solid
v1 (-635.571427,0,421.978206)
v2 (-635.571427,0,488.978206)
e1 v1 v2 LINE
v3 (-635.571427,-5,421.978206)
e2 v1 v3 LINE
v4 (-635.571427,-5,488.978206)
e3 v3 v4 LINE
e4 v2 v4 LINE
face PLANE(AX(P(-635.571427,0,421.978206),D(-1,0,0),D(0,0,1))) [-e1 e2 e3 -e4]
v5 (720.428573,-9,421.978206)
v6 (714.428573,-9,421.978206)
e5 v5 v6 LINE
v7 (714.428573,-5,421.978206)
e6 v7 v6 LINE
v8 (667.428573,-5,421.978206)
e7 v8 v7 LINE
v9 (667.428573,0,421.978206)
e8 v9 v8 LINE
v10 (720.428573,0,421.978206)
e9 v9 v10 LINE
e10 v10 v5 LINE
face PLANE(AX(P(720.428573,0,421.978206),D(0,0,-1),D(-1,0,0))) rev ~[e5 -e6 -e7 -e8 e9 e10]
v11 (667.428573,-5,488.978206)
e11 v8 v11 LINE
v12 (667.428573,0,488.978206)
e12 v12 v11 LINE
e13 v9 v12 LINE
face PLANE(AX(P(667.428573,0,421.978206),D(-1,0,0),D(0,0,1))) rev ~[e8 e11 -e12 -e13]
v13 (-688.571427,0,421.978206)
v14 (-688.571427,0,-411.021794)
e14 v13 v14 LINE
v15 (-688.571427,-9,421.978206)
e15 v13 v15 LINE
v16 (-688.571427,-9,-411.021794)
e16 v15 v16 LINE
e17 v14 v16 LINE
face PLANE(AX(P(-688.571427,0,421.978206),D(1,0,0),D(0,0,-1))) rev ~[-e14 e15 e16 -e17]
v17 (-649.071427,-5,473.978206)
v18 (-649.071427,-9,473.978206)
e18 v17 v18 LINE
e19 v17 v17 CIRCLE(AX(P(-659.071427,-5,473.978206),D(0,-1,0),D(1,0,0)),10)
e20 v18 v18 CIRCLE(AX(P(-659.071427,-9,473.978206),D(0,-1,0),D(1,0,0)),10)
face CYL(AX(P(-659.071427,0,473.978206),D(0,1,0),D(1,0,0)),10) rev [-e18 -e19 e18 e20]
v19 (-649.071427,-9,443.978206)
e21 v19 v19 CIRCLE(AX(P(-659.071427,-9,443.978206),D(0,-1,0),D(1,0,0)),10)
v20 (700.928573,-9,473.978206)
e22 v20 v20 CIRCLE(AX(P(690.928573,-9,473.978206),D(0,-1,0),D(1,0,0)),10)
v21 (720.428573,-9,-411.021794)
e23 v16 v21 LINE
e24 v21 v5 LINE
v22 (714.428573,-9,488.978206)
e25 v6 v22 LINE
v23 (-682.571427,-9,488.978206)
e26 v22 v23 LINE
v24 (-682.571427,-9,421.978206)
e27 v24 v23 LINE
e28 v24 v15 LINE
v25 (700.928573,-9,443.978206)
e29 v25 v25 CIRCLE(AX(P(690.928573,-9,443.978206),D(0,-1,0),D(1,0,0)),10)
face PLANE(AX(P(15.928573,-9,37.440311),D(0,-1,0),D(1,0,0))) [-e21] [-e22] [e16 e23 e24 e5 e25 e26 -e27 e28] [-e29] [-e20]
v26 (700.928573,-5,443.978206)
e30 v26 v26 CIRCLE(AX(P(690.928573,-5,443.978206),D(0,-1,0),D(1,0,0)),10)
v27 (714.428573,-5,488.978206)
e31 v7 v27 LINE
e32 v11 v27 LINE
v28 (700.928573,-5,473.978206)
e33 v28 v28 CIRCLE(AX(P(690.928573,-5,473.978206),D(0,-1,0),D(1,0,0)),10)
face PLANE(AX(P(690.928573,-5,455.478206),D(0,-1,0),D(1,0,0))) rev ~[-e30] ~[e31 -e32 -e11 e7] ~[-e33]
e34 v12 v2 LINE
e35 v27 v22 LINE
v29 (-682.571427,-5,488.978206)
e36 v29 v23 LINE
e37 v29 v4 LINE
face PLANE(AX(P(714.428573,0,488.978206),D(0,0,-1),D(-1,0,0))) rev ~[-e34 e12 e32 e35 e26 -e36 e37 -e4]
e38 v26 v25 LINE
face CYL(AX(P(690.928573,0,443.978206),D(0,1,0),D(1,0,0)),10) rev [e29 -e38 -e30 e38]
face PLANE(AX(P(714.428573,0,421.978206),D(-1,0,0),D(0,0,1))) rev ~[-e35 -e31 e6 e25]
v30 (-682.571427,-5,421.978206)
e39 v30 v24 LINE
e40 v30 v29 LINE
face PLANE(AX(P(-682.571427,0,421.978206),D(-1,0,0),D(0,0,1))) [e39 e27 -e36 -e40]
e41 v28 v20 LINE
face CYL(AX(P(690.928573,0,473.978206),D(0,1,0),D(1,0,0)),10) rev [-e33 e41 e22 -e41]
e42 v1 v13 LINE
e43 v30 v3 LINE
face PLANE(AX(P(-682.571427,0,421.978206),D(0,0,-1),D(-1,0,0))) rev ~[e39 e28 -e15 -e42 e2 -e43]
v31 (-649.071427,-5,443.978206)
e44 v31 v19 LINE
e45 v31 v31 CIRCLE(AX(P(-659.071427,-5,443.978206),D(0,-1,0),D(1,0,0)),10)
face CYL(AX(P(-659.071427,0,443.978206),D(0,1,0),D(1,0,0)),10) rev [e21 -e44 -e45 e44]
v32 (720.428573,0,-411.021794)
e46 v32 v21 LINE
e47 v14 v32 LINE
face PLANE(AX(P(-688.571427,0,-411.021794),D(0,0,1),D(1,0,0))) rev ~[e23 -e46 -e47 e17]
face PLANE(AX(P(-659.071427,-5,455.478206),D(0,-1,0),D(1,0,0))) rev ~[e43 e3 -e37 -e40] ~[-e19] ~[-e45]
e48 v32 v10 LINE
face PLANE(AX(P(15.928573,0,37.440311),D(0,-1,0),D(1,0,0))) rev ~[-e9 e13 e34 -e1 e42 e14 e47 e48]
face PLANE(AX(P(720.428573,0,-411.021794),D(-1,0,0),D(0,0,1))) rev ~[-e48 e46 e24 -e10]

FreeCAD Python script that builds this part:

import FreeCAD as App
import Part
import Sketcher
Q = App.Units.Quantity

doc = App.newDocument("Part")
body = doc.addObject("PartDesign::Body", "Body")

# Sketch on XZ plane
sketch1 = body.newObject("Sketcher::SketchObject", "Sketch")
sketch1.AttachmentSupport = (doc.getObject("XZ_Plane"), [""])
sketch1.MapMode = "FlatFace"
sketch1.addGeometry(Part.LineSegment(App.Vector(-683, 489, 0), App.Vector(-683, 422, 0)), False)
sketch1.addGeometry(Part.LineSegment(App.Vector(-683, 422, 0), App.Vector(-689, 422, 0)), False)
sketch1.addGeometry(Part.LineSegment(App.Vector(-689, 422, 0), App.Vector(-689, -411, 0)), False)
sketch1.addGeometry(Part.LineSegment(App.Vector(-689, -411, 0), App.Vector(720, -411, 0)), False)
sketch1.addGeometry(Part.LineSegment(App.Vector(720, -411, 0), App.Vector(720, 422, 0)), False)
sketch1.addGeometry(Part.LineSegment(App.Vector(720, 422, 0), App.Vector(714, 422, 0)), False)
sketch1.addGeometry(Part.LineSegment(App.Vector(714, 422, 0), App.Vector(714, 489, 0)), False)
sketch1.addGeometry(Part.LineSegment(App.Vector(714, 489, 0), App.Vector(-683, 489, 0)), False)
sketch1.addGeometry(Part.Circle(App.Vector(-659, 444, 0), App.Vector(0, 0, 1), 10), False)
sketch1.addGeometry(Part.Circle(App.Vector(691, 444, 0), App.Vector(0, 0, 1), 10), False)
sketch1.addGeometry(Part.Circle(App.Vector(-659, 474, 0), App.Vector(0, 0, 1), 10), False)
sketch1.addGeometry(Part.Circle(App.Vector(691, 474, 0), App.Vector(0, 0, 1), 10), False)
sketch1.addConstraint(Sketcher.Constraint("Coincident", 0, 2, 1, 1))
sketch1.addConstraint(Sketcher.Constraint("Coincident", 1, 2, 2, 1))
sketch1.addConstraint(Sketcher.Constraint("Coincident", 2, 2, 3, 1))
sketch1.addConstraint(Sketcher.Constraint("Coincident", 3, 2, 4, 1))
sketch1.addConstraint(Sketcher.Constraint("Coincident", 4, 2, 5, 1))
sketch1.addConstraint(Sketcher.Constraint("Coincident", 5, 2, 6, 1))
sketch1.addConstraint(Sketcher.Constraint("Coincident", 6, 2, 7, 1))
sketch1.addConstraint(Sketcher.Constraint("Coincident", 7, 2, 0, 1))
sketch1.addConstraint(Sketcher.Constraint("Vertical", 0))
sketch1.addConstraint(Sketcher.Constraint("Horizontal", 1))
sketch1.addConstraint(Sketcher.Constraint("Vertical", 2))
sketch1.addConstraint(Sketcher.Constraint("Horizontal", 3))
sketch1.addConstraint(Sketcher.Constraint("Vertical", 4))
sketch1.addConstraint(Sketcher.Constraint("Horizontal", 5))
sketch1.addConstraint(Sketcher.Constraint("Vertical", 6))
sketch1.addConstraint(Sketcher.Constraint("Horizontal", 7))
sketch1.addConstraint(Sketcher.Constraint("Equal", 8, 9))
sketch1.addConstraint(Sketcher.Constraint("Equal", 9, 10))
sketch1.addConstraint(Sketcher.Constraint("Equal", 10, 11))
sketch1.addConstraint(Sketcher.Constraint("Horizontal", 8, 3, 9, 3))
sketch1.addConstraint(Sketcher.Constraint("Horizontal", 10, 3, 11, 3))
sketch1.addConstraint(Sketcher.Constraint("Horizontal", 1, 2, 4, 2))
sketch1.addConstraint(Sketcher.Constraint("Vertical", 8, 3, 10, 3))
sketch1.addConstraint(Sketcher.Constraint("Vertical", 9, 3, 11, 3))
sketch1.addConstraint(Sketcher.Constraint("Equal", 1, 5))
sketch1.addConstraint(Sketcher.Constraint("Diameter", 8, Q("20 mm")))
sketch1.addConstraint(Sketcher.Constraint("DistanceX", 1, 2, 1, 1, Q("6 mm")))
sketch1.addConstraint(Sketcher.Constraint("DistanceX", 3, 1, 3, 2, Q("1409 mm")))
sketch1.addConstraint(Sketcher.Constraint("DistanceY", 0, 2, 0, 1, Q("67 mm")))
sketch1.addConstraint(Sketcher.Constraint("DistanceY", 2, 2, 2, 1, Q("833 mm")))
sketch1.addConstraint(Sketcher.Constraint("DistanceX", 8, 3, 9, 3, Q("1350 mm")))
sketch1.addConstraint(Sketcher.Constraint("DistanceY", 8, 3, 10, 3, Q("30 mm")))
sketch1.addConstraint(Sketcher.Constraint("DistanceY", 0, 2, 8, 3, Q("22 mm")))
sketch1.addConstraint(Sketcher.Constraint("DistanceX", 0, 2, 8, 3, Q("23.5 mm")))
sketch1.addConstraint(Sketcher.Constraint("DistanceX", 8, 3, -1, 1, Q("659.071427 mm")))
sketch1.addConstraint(Sketcher.Constraint("DistanceY", -1, 1, 8, 3, Q("443.978206 mm")))
pad1 = body.newObject("PartDesign::Pad", "Pad")
pad1.Profile = sketch1
pad1.Length = 9

# Sketch on XZ plane
sketch2 = body.newObject("Sketcher::SketchObject", "Sketch001")
sketch2.AttachmentSupport = (doc.getObject("XZ_Plane"), [""])
sketch2.MapMode = "FlatFace"
sketch2.addGeometry(Part.LineSegment(App.Vector(-683, 489, 0), App.Vector(-683, 422, 0)), False)
sketch2.addGeometry(Part.LineSegment(App.Vector(-683, 422, 0), App.Vector(-636, 422, 0)), False)
sketch2.addGeometry(Part.LineSegment(App.Vector(-636, 422, 0), App.Vector(-636, 489, 0)), False)
sketch2.addGeometry(Part.LineSegment(App.Vector(-636, 489, 0), App.Vector(-683, 489, 0)), False)
sketch2.addGeometry(Part.Circle(App.Vector(-659, 444, 0), App.Vector(0, 0, 1), 10), False)
sketch2.addGeometry(Part.Circle(App.Vector(-659, 474, 0), App.Vector(0, 0, 1), 10), False)
sketch2.addGeometry(Part.LineSegment(App.Vector(667, 489, 0), App.Vector(667, 422, 0)), False)
sketch2.addGeometry(Part.LineSegment(App.Vector(667, 422, 0), App.Vector(714, 422, 0)), False)
sketch2.addGeometry(Part.LineSegment(App.Vector(714, 422, 0), App.Vector(714, 489, 0)), False)
sketch2.addGeometry(Part.LineSegment(App.Vector(714, 489, 0), App.Vector(667, 489, 0)), False)
sketch2.addGeometry(Part.Circle(App.Vector(691, 444, 0), App.Vector(0, 0, 1), 10), False)
sketch2.addGeometry(Part.Circle(App.Vector(691, 474, 0), App.Vector(0, 0, 1), 10), False)
sketch2.addConstraint(Sketcher.Constraint("Coincident", 0, 2, 1, 1))
sketch2.addConstraint(Sketcher.Constraint("Coincident", 1, 2, 2, 1))
sketch2.addConstraint(Sketcher.Constraint("Coincident", 2, 2, 3, 1))
sketch2.addConstraint(Sketcher.Constraint("Coincident", 3, 2, 0, 1))
sketch2.addConstraint(Sketcher.Constraint("Coincident", 6, 2, 7, 1))
sketch2.addConstraint(Sketcher.Constraint("Coincident", 7, 2, 8, 1))
sketch2.addConstraint(Sketcher.Constraint("Coincident", 8, 2, 9, 1))
sketch2.addConstraint(Sketcher.Constraint("Coincident", 9, 2, 6, 1))
sketch2.addConstraint(Sketcher.Constraint("Vertical", 0))
sketch2.addConstraint(Sketcher.Constraint("Horizontal", 1))
sketch2.addConstraint(Sketcher.Constraint("Vertical", 2))
sketch2.addConstraint(Sketcher.Constraint("Horizontal", 3))
sketch2.addConstraint(Sketcher.Constraint("Vertical", 6))
sketch2.addConstraint(Sketcher.Constraint("Horizontal", 7))
sketch2.addConstraint(Sketcher.Constraint("Vertical", 8))
sketch2.addConstraint(Sketcher.Constraint("Horizontal", 9))
sketch2.addConstraint(Sketcher.Constraint("Equal", 4, 5))
sketch2.addConstraint(Sketcher.Constraint("Equal", 5, 10))
sketch2.addConstraint(Sketcher.Constraint("Equal", 10, 11))
sketch2.addConstraint(Sketcher.Constraint("Horizontal", 4, 3, 10, 3))
sketch2.addConstraint(Sketcher.Constraint("Horizontal", 5, 3, 11, 3))
sketch2.addConstraint(Sketcher.Constraint("Horizontal", 1, 2, 6, 2))
sketch2.addConstraint(Sketcher.Constraint("Horizontal", 3, 2, 8, 2))
sketch2.addConstraint(Sketcher.Constraint("Vertical", 4, 3, 5, 3))
sketch2.addConstraint(Sketcher.Constraint("Vertical", 10, 3, 11, 3))
sketch2.addConstraint(Sketcher.Constraint("Equal", 3, 7))
sketch2.addConstraint(Sketcher.Constraint("Diameter", 4, Q("20 mm")))
sketch2.addConstraint(Sketcher.Constraint("DistanceX", 1, 1, 1, 2, Q("47 mm")))
sketch2.addConstraint(Sketcher.Constraint("DistanceY", 0, 2, 0, 1, Q("67 mm")))
sketch2.addConstraint(Sketcher.Constraint("DistanceY", 4, 3, 5, 3, Q("30 mm")))
sketch2.addConstraint(Sketcher.Constraint("DistanceX", 4, 3, 10, 3, Q("1350 mm")))
sketch2.addConstraint(Sketcher.Constraint("DistanceY", 0, 2, 4, 3, Q("22 mm")))
sketch2.addConstraint(Sketcher.Constraint("DistanceX", 1, 2, 6, 2, Q("1303 mm")))
sketch2.addConstraint(Sketcher.Constraint("DistanceX", 0, 2, 4, 3, Q("23.5 mm")))
sketch2.addConstraint(Sketcher.Constraint("DistanceX", 4, 3, -1, 1, Q("659.071427 mm")))
sketch2.addConstraint(Sketcher.Constraint("DistanceY", -1, 1, 4, 3, Q("443.978206 mm")))
pocket1 = body.newObject("PartDesign::Pocket", "Pocket")
pocket1.Profile = sketch2
pocket1.Length = 5
pocket1.Reversed = True

doc.recompute()
